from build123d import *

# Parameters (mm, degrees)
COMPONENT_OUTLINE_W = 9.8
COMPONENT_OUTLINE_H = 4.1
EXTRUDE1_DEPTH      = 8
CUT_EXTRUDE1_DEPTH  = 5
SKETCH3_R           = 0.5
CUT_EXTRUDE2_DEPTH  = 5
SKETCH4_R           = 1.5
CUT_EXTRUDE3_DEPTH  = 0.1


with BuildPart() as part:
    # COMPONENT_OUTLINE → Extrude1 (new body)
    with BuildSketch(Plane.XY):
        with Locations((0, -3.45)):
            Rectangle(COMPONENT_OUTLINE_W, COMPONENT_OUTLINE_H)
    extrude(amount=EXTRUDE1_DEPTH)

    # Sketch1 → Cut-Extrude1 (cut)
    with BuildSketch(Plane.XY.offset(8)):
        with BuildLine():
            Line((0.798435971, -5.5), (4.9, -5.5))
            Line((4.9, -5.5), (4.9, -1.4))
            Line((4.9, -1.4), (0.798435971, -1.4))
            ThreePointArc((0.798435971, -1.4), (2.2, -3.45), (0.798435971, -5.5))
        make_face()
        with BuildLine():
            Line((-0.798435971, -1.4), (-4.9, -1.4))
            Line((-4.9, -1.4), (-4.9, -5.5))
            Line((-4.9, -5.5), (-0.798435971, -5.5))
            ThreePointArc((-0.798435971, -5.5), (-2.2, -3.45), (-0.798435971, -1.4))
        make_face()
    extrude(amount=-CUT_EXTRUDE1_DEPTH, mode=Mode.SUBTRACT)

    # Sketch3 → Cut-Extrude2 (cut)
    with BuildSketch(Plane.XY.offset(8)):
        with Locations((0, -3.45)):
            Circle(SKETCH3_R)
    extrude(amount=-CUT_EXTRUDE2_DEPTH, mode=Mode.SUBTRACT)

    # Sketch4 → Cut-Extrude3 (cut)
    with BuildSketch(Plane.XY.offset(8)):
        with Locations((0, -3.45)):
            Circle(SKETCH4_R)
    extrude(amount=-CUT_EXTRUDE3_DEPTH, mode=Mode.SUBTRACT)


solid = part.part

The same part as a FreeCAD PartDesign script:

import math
import FreeCAD as App
import Part
import Sketcher
Q = App.Units.Quantity


def add_polygon(sketch, points):
    """Adds a closed chain of lines whose ends are joined by coincident constraints."""
    first, n = sketch.GeometryCount, len(points)
    for a, b in zip(points, points[1:] + points[:1]):
        sketch.addGeometry(Part.LineSegment(App.Vector(*a, 0), App.Vector(*b, 0)), False)
    for i in range(n):
        sketch.addConstraint(Sketcher.Constraint("Coincident", first + i, 2, first + (i + 1) % n, 1))

doc = App.newDocument("Part")
params = doc.addObject("Spreadsheet::Sheet", "Params")
for row, (alias, value) in enumerate([
    ("sketch1_width", "9.8 mm"),
    ("sketch1_height", "4.1 mm"),
    ("pad1_length", "8 mm"),
    ("sketch2_radius", "2.2 mm"),
    ("sketch2_height", "4.1 mm"),
    ("pocket1_length", "5 mm"),
    ("sketch3_diameter", "1 mm"),
    ("pocket2_length", "5 mm"),
    ("sketch4_diameter", "3 mm"),
    ("pocket3_length", "0.1 mm"),
], start=1):
    params.set(f"A{row}", alias)
    params.set(f"B{row}", "=" + value)
    params.setAlias(f"B{row}", alias)

body = doc.addObject("PartDesign::Body", "Body")

sketch1 = body.newObject("Sketcher::SketchObject", "Sketch")
sketch1.AttachmentSupport = (doc.getObject("XY_Plane"), [""])
sketch1.MapMode = "FlatFace"
add_polygon(sketch1, [(-4.9, -1.4), (-4.9, -5.5), (4.9, -5.5), (4.9, -1.4)])
sketch1.addConstraint(Sketcher.Constraint("Vertical", 0))
sketch1.addConstraint(Sketcher.Constraint("Horizontal", 1))
sketch1.addConstraint(Sketcher.Constraint("Vertical", 2))
sketch1.addConstraint(Sketcher.Constraint("Horizontal", 3))
sketch1.addConstraint(Sketcher.Constraint("DistanceX", 1, 1, 1, 2, Q("9.8 mm")))
sketch1.addConstraint(Sketcher.Constraint("DistanceY", 0, 2, 0, 1, Q("4.1 mm")))
sketch1.addConstraint(Sketcher.Constraint("DistanceX", 0, 2, -1, 1, Q("4.9 mm")))
sketch1.addConstraint(Sketcher.Constraint("DistanceY", 0, 2, -1, 1, Q("5.5 mm")))
sketch1.setExpression("Constraints[8]", "Params.sketch1_width")
sketch1.setExpression("Constraints[9]", "Params.sketch1_height")
pad1 = body.newObject("PartDesign::Pad", "Pad")
pad1.Profile = sketch1
pad1.setExpression("Length", "Params.pad1_length")

sketch2 = body.newObject("Sketcher::SketchObject", "Sketch001")
sketch2.AttachmentSupport = (doc.getObject("XY_Plane"), [""])
sketch2.MapMode = "FlatFace"
sketch2.AttachmentOffset = App.Placement(App.Vector(0, 0, 8), App.Rotation())
sketch2.addGeometry(Part.LineSegment(App.Vector(0.8, -5.5, 0), App.Vector(4.9, -5.5, 0)), False)
sketch2.addGeometry(Part.LineSegment(App.Vector(4.9, -5.5, 0), App.Vector(4.9, -1.4, 0)), False)
sketch2.addGeometry(Part.LineSegment(App.Vector(4.9, -1.4, 0), App.Vector(0.8, -1.4, 0)), False)
sketch2.addGeometry(Part.ArcOfCircle(Part.Circle(App.Vector(0, -3.5, 0), App.Vector(0, 0, 1), 2.2), math.radians(-69), math.radians(69)), False)
sketch2.addGeometry(Part.LineSegment(App.Vector(-0.8, -1.4, 0), App.Vector(-4.9, -1.4, 0)), False)
sketch2.addGeometry(Part.LineSegment(App.Vector(-4.9, -1.4, 0), App.Vector(-4.9, -5.5, 0)), False)
sketch2.addGeometry(Part.LineSegment(App.Vector(-4.9, -5.5, 0), App.Vector(-0.8, -5.5, 0)), False)
sketch2.addGeometry(Part.ArcOfCircle(Part.Circle(App.Vector(0, -3.5, 0), App.Vector(0, 0, 1), 2.2), math.radians(111), math.radians(249)), False)
sketch2.addConstraint(Sketcher.Constraint("Coincident", 0, 2, 1, 1))
sketch2.addConstraint(Sketcher.Constraint("Coincident", 1, 2, 2, 1))
sketch2.addConstraint(Sketcher.Constraint("Coincident", 2, 2, 3, 2))
sketch2.addConstraint(Sketcher.Constraint("Coincident", 3, 1, 0, 1))
sketch2.addConstraint(Sketcher.Constraint("Coincident", 4, 2, 5, 1))
sketch2.addConstraint(Sketcher.Constraint("Coincident", 5, 2, 6, 1))
sketch2.addConstraint(Sketcher.Constraint("Coincident", 6, 2, 7, 2))
sketch2.addConstraint(Sketcher.Constraint("Coincident", 7, 1, 4, 1))
sketch2.addConstraint(Sketcher.Constraint("Horizontal", 0))
sketch2.addConstraint(Sketcher.Constraint("Vertical", 1))
sketch2.addConstraint(Sketcher.Constraint("Horizontal", 2))
sketch2.addConstraint(Sketcher.Constraint("Horizontal", 4))
sketch2.addConstraint(Sketcher.Constraint("Vertical", 5))
sketch2.addConstraint(Sketcher.Constraint("Horizontal", 6))
sketch2.addConstraint(Sketcher.Constraint("Coincident", 7, 3, 3, 3))
sketch2.addConstraint(Sketcher.Constraint("Equal", 3, 7))
sketch2.addConstraint(Sketcher.Constraint("Symmetric", 1, 2, 4, 2, -2))
sketch2.addConstraint(Sketcher.Constraint("Symmetric", 3, 1, 6, 2, -2))
sketch2.addConstraint(Sketcher.Constraint("Vertical", 2, 2, 3, 1))
sketch2.addConstraint(Sketcher.Constraint("Radius", 3, Q("2.2 mm")))
sketch2.addConstraint(Sketcher.Constraint("DistanceY", 1, 1, 1, 2, Q("4.1 mm")))
sketch2.addConstraint(Sketcher.Constraint("DistanceX", -1, 1, 0, 2, Q("4.9 mm")))
sketch2.addConstraint(Sketcher.Constraint("DistanceY", 0, 2, -1, 1, Q("5.5 mm")))
sketch2.setExpression("Constraints[19]", "Params.sketch2_radius")
sketch2.setExpression("Constraints[20]", "Params.sketch2_height")
pocket1 = body.newObject("PartDesign::Pocket", "Pocket")
pocket1.Profile = sketch2
pocket1.setExpression("Length", "Params.pocket1_length")

sketch3 = body.newObject("Sketcher::SketchObject", "Sketch002")
sketch3.AttachmentSupport = (doc.getObject("XY_Plane"), [""])
sketch3.MapMode = "FlatFace"
sketch3.AttachmentOffset = App.Placement(App.Vector(0, 0, 8), App.Rotation())
sketch3.addGeometry(Part.Circle(App.Vector(0, -3.5, 0), App.Vector(0, 0, 1), 0.5), False)
sketch3.addConstraint(Sketcher.Constraint("PointOnObject", 0, 3, -2))
sketch3.addConstraint(Sketcher.Constraint("Diameter", 0, Q("1 mm")))
sketch3.addConstraint(Sketcher.Constraint("DistanceY", 0, 3, -1, 1, Q("3.45 mm")))
sketch3.setExpression("Constraints[1]", "Params.sketch3_diameter")
pocket2 = body.newObject("PartDesign::Pocket", "Pocket001")
pocket2.Profile = sketch3
pocket2.setExpression("Length", "Params.pocket2_length")

sketch4 = body.newObject("Sketcher::SketchObject", "Sketch003")
sketch4.AttachmentSupport = (doc.getObject("XY_Plane"), [""])
sketch4.MapMode = "FlatFace"
sketch4.AttachmentOffset = App.Placement(App.Vector(0, 0, 8), App.Rotation())
sketch4.addGeometry(Part.Circle(App.Vector(0, -3.5, 0), App.Vector(0, 0, 1), 1.5), False)
sketch4.addConstraint(Sketcher.Constraint("PointOnObject", 0, 3, -2))
sketch4.addConstraint(Sketcher.Constraint("Diameter", 0, Q("3 mm")))
sketch4.addConstraint(Sketcher.Constraint("DistanceY", 0, 3, -1, 1, Q("3.45 mm")))
sketch4.setExpression("Constraints[1]", "Params.sketch4_diameter")
pocket3 = body.newObject("PartDesign::Pocket", "Pocket002")
pocket3.Profile = sketch4
pocket3.setExpression("Length", "Params.pocket3_length")

doc.recompute()
